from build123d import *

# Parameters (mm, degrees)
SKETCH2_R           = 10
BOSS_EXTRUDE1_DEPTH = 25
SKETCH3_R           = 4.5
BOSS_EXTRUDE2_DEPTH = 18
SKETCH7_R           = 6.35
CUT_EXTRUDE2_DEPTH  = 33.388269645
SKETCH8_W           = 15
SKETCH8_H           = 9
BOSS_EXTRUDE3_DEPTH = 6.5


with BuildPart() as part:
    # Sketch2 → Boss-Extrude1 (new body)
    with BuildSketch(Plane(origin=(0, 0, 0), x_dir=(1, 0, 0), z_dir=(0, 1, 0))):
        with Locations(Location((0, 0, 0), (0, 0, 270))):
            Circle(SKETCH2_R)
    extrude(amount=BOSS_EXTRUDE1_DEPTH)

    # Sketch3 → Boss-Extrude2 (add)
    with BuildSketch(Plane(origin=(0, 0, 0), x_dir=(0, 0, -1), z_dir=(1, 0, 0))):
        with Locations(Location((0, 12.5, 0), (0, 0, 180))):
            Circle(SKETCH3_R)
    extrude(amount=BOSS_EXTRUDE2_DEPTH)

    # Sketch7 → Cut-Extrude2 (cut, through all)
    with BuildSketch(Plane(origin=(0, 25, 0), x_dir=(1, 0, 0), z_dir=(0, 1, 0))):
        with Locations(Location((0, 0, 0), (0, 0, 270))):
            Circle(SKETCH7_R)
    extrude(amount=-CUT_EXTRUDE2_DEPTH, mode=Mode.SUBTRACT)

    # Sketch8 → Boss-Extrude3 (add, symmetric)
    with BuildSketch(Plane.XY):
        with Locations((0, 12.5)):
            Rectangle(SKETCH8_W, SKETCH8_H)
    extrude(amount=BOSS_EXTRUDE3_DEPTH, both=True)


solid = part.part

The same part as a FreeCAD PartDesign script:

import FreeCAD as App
import Part
import Sketcher

V = App.Vector
Q = App.Units.Quantity


def add_polygon(sketch, points):
    """Adds a closed chain of lines whose ends are joined by coincident constraints."""
    first, n = sketch.GeometryCount, len(points)
    for a, b in zip(points, points[1:] + points[:1]):
        sketch.addGeometry(Part.LineSegment(App.Vector(*a, 0), App.Vector(*b, 0)), False)
    for i in range(n):
        sketch.addConstraint(Sketcher.Constraint("Coincident", first + i, 2, first + (i + 1) % n, 1))

doc = App.newDocument("Part")
body = doc.addObject("PartDesign::Body", "Body")

sketch1 = body.newObject("Sketcher::SketchObject", "Sketch")
sketch1.AttachmentSupport = (doc.getObject("XZ_Plane"), [""])
sketch1.MapMode = "FlatFace"
sketch1.addGeometry(Part.Circle(V(0, 0, 0), V(0, 0, 1), 10), False)
sketch1.addConstraint([
    Sketcher.Constraint("Coincident", 0, 3, -1, 1),
    Sketcher.Constraint("Diameter", 0, Q("20 mm")),
])
pad1 = body.newObject("PartDesign::Pad", "Pad")
pad1.Profile = sketch1
pad1.Length = 25
pad1.Reversed = True

sketch2 = body.newObject("Sketcher::SketchObject", "Sketch001")
sketch2.AttachmentSupport = (doc.getObject("YZ_Plane"), [""])
sketch2.MapMode = "FlatFace"
sketch2.addGeometry(Part.Circle(V(12.5, 0, 0), V(0, 0, 1), 4.5), False)
sketch2.addConstraint([
    Sketcher.Constraint("PointOnObject", 0, 3, -1),
    Sketcher.Constraint("Diameter", 0, Q("9 mm")),
    Sketcher.Constraint("DistanceX", -1, 1, 0, 3, Q("12.5 mm")),
])
pad2 = body.newObject("PartDesign::Pad", "Pad001")
pad2.Profile = sketch2
pad2.Length = 18

sketch3 = body.newObject("Sketcher::SketchObject", "Sketch002")
sketch3.AttachmentSupport = (doc.getObject("XZ_Plane"), [""])
sketch3.MapMode = "FlatFace"
sketch3.AttachmentOffset = App.Placement(V(0, 0, -25), App.Rotation())
sketch3.addGeometry(Part.Circle(V(0, 0, 0), V(0, 0, 1), 6), False)
sketch3.addConstraint([
    Sketcher.Constraint("Coincident", 0, 3, -1, 1),
    Sketcher.Constraint("Diameter", 0, Q("12.7 mm")),
])
pocket1 = body.newObject("PartDesign::Pocket", "Pocket")
pocket1.Profile = sketch3
pocket1.Type = "ThroughAll"
pocket1.Reversed = True

sketch4 = body.newObject("Sketcher::SketchObject", "Sketch003")
sketch4.AttachmentSupport = (doc.getObject("XY_Plane"), [""])
sketch4.MapMode = "FlatFace"
add_polygon(sketch4, [(-8, 17), (-8, 8), (8, 8), (8, 17)])
sketch4.addConstraint([
    Sketcher.Constraint("Vertical", 0),
    Sketcher.Constraint("Horizontal", 1),
    Sketcher.Constraint("Vertical", 2),
    Sketcher.Constraint("Horizontal", 3),
    Sketcher.Constraint("DistanceX", 1, 1, 1, 2, Q("15 mm")),
    Sketcher.Constraint("DistanceY", 0, 2, 0, 1, Q("9 mm")),
    Sketcher.Constraint("DistanceY", -1, 1, 0, 2, Q("8 mm")),
    Sketcher.Constraint("DistanceX", 0, 2, -1, 1, Q("7.5 mm")),
])
pad3 = body.newObject("PartDesign::Pad", "Pad002")
pad3.Profile = sketch4
pad3.Length = 13
pad3.Midplane = True

doc.recompute()
